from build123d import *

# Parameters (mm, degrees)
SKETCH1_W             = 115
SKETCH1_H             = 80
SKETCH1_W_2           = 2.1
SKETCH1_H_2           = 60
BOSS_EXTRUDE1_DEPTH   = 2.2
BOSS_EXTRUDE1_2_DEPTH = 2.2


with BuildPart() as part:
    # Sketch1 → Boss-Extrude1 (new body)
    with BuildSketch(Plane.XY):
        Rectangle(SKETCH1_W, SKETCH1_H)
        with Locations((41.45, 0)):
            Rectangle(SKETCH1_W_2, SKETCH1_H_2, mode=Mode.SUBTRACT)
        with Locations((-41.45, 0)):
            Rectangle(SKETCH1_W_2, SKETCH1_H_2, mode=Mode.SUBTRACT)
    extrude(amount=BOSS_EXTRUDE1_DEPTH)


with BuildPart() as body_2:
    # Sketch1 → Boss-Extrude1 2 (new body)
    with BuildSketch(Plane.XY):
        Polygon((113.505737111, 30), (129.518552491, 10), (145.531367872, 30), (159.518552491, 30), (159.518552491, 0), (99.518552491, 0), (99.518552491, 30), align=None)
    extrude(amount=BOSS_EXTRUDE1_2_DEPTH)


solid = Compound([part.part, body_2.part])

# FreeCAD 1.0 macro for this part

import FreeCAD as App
import Part
import Sketcher

V = App.Vector

doc = App.newDocument("Part")
params = doc.addObject("Spreadsheet::Sheet", "Params")
for row, (alias, value) in enumerate([
    ("sketch1_width", "115 mm"),
    ("sketch1_height", "80 mm"),
    ("sketch1_height2", "60 mm"),
    ("sketch1_width2", "2.1 mm"),
    ("pad1_length", "2.2 mm"),
    ("sketch2_width", "60 mm"),
    ("sketch2_height", "30 mm"),
    ("pad2_length", "2.2 mm"),
], start=1):
    params.set(f"A{row}", alias)
    params.set(f"B{row}", "=" + value)
    params.setAlias(f"B{row}", alias)

body = doc.addObject("PartDesign::Body", "Body")

# Sketch on XY plane
sketch1 = body.newObject("Sketcher::SketchObject", "Sketch")
sketch1.AttachmentSupport = (doc.getObject("XY_Plane"), [""])
sketch1.MapMode = "FlatFace"
sketch1.addGeometry([
    Part.LineSegment(V(-57.5, 40, 0), V(-57.5, -40, 0)),  # 0
    Part.LineSegment(V(-57.5, -40, 0), V(57.5, -40, 0)),  # 1
    Part.LineSegment(V(57.5, -40, 0), V(57.5, 40, 0)),  # 2
    Part.LineSegment(V(57.5, 40, 0), V(-57.5, 40, 0)),  # 3
    Part.LineSegment(V(-40.4, -30, 0), V(-42.5, -30, 0)),  # 4
    Part.LineSegment(V(-42.5, -30, 0), V(-42.5, 30, 0)),  # 5
    Part.LineSegment(V(-42.5, 30, 0), V(-40.4, 30, 0)),  # 6
    Part.LineSegment(V(-40.4, 30, 0), V(-40.4, -30, 0)),  # 7
    Part.LineSegment(V(42.5, -30, 0), V(40.4, -30, 0)),  # 8
    Part.LineSegment(V(40.4, -30, 0), V(40.4, 30, 0)),  # 9
    Part.LineSegment(V(40.4, 30, 0), V(42.5, 30, 0)),  # 10
    Part.LineSegment(V(42.5, 30, 0), V(42.5, -30, 0)),  # 11
], False)
sketch1.addConstraint([
    Sketcher.Constraint("Coincident", 0, 2, 1, 1),
    Sketcher.Constraint("Coincident", 1, 2, 2, 1),
    Sketcher.Constraint("Coincident", 2, 2, 3, 1),
    Sketcher.Constraint("Coincident", 3, 2, 0, 1),
    Sketcher.Constraint("Coincident", 4, 2, 5, 1),
    Sketcher.Constraint("Coincident", 5, 2, 6, 1),
    Sketcher.Constraint("Coincident", 6, 2, 7, 1),
    Sketcher.Constraint("Coincident", 7, 2, 4, 1),
    Sketcher.Constraint("Coincident", 8, 2, 9, 1),
    Sketcher.Constraint("Coincident", 9, 2, 10, 1),
    Sketcher.Constraint("Coincident", 10, 2, 11, 1),
    Sketcher.Constraint("Coincident", 11, 2, 8, 1),
    Sketcher.Constraint("Vertical", 0),
    Sketcher.Constraint("Horizontal", 1),
    Sketcher.Constraint("Vertical", 2),
    Sketcher.Constraint("Horizontal", 3),
    Sketcher.Constraint("Horizontal", 4),
    Sketcher.Constraint("Vertical", 5),
    Sketcher.Constraint("Horizontal", 6),
    Sketcher.Constraint("Vertical", 7),
    Sketcher.Constraint("Horizontal", 8),
    Sketcher.Constraint("Vertical", 9),
    Sketcher.Constraint("Horizontal", 10),
    Sketcher.Constraint("Vertical", 11),
    Sketcher.Constraint("Symmetric", 0, 2, 2, 2, -1, 1),
    Sketcher.Constraint("Symmetric", 6, 2, 8, 2, -1, 1),
    Sketcher.Constraint("Symmetric", 4, 2, 10, 2, -1, 1),
    Sketcher.Constraint("Horizontal", 7, 2, 8, 2),
    Sketcher.Constraint("DistanceX", 1, 1, 1, 2, 115.0),
    Sketcher.Constraint("DistanceY", 0, 2, 0, 1, 80.0),
    Sketcher.Constraint("DistanceY", 5, 1, 5, 2, 60.0),
    Sketcher.Constraint("DistanceX", 4, 2, 4, 1, 2.1),
    Sketcher.Constraint("DistanceX", 0, 2, 4, 2, 15.0),
])
sketch1.setExpression("Constraints[28]", "Params.sketch1_width")
sketch1.setExpression("Constraints[29]", "Params.sketch1_height")
sketch1.setExpression("Constraints[30]", "Params.sketch1_height2")
sketch1.setExpression("Constraints[31]", "Params.sketch1_width2")
pad1 = body.newObject("PartDesign::Pad", "Pad")
pad1.Profile = sketch1
pad1.setExpression("Length", "Params.pad1_length")
body2 = doc.addObject("PartDesign::Body", "Body001")

# Sketch on XY plane
sketch2 = body2.newObject("Sketcher::SketchObject", "Sketch001")
sketch2.AttachmentSupport = (doc.getObject("XY_Plane001"), [""])
sketch2.MapMode = "FlatFace"
sketch2.addGeometry([
    Part.LineSegment(V(130, 10, 0), V(114, 30, 0)),  # 0
    Part.LineSegment(V(114, 30, 0), V(100, 30, 0)),  # 1
    Part.LineSegment(V(100, 30, 0), V(100, 0, 0)),  # 2
    Part.LineSegment(V(100, 0, 0), V(160, 0, 0)),  # 3
    Part.LineSegment(V(160, 0, 0), V(160, 30, 0)),  # 4
    Part.LineSegment(V(160, 30, 0), V(146, 30, 0)),  # 5
    Part.LineSegment(V(146, 30, 0), V(130, 10, 0)),  # 6
], False)
sketch2.addConstraint([
    Sketcher.Constraint("Coincident", 0, 2, 1, 1),
    Sketcher.Constraint("Coincident", 1, 2, 2, 1),
    Sketcher.Constraint("Coincident", 2, 2, 3, 1),
    Sketcher.Constraint("Coincident", 3, 2, 4, 1),
    Sketcher.Constraint("Coincident", 4, 2, 5, 1),
    Sketcher.Constraint("Coincident", 5, 2, 6, 1),
    Sketcher.Constraint("Coincident", 6, 2, 0, 1),
    Sketcher.Constraint("Horizontal", 1),
    Sketcher.Constraint("Vertical", 2),
    Sketcher.Constraint("Horizontal", 3),
    Sketcher.Constraint("Vertical", 4),
    Sketcher.Constraint("Horizontal", 5),
    Sketcher.Constraint("PointOnObject", 2, 2, -1),
    Sketcher.Constraint("Horizontal", 1, 2, 4, 2),
    Sketcher.Constraint("Equal", 1, 5),
    Sketcher.Constraint("Equal", 0, 6),
    Sketcher.Constraint("DistanceX", 3, 1, 3, 2, 60.0),
    Sketcher.Constraint("DistanceY", 2, 2, 2, 1, 30.0),
    Sketcher.Constraint("DistanceY", -1, 1, 6, 2, 10.0),
    Sketcher.Constraint("DistanceX", 1, 2, 1, 1, 13.987185),
    Sketcher.Constraint("DistanceX", -1, 1, 0, 2, 113.505737),
])
sketch2.setExpression("Constraints[16]", "Params.sketch2_width")
sketch2.setExpression("Constraints[17]", "Params.sketch2_height")
pad2 = body2.newObject("PartDesign::Pad", "Pad001")
pad2.Profile = sketch2
pad2.setExpression("Length", "Params.pad2_length")

doc.recompute()
